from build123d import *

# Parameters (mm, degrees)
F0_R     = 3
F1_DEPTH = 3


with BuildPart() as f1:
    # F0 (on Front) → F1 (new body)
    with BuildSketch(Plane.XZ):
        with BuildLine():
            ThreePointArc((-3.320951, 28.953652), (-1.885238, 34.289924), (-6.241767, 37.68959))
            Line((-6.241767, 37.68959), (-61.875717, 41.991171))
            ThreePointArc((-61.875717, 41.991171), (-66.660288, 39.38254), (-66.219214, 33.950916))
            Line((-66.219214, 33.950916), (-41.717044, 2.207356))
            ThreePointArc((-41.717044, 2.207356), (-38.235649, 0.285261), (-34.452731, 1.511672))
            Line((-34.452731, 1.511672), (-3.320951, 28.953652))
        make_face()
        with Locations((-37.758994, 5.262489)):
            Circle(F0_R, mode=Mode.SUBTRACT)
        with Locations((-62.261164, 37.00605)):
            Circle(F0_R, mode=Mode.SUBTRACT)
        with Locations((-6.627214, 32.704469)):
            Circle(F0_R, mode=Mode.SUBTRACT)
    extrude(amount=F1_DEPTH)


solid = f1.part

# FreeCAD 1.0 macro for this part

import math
import FreeCAD as App
import Part
import Sketcher
from FreeCAD import Vector

doc = App.newDocument("Part")
body = doc.addObject("PartDesign::Body", "Body")

sketch1 = body.newObject("Sketcher::SketchObject", "Sketch")
sketch1.AttachmentSupport = (doc.getObject("XZ_Plane"), [""])
sketch1.MapMode = "FlatFace"
sketch1.addGeometry([
    Part.ArcOfCircle(Part.Circle(Vector(-6.627214, 32.704469, 0), Vector(0, 0, 1), 5), math.radians(-48.604533), math.radians(85.57872)),
    Part.LineSegment(Vector(-6.241767, 37.68959, 0), Vector(-61.875717, 41.991171, 0)),
    Part.ArcOfCircle(Part.Circle(Vector(-62.261163, 37.006049, 0), Vector(0, 0, 1), 5.000001), math.radians(85.578725), math.radians(217.663771)),
    Part.LineSegment(Vector(-66.219214, 33.950916, 0), Vector(-41.717044, 2.207356, 0)),
    Part.ArcOfCircle(Part.Circle(Vector(-37.758994, 5.26249, 0), Vector(0, 0, 1), 5), math.radians(-142.336226), math.radians(-48.604538)),
    Part.LineSegment(Vector(-34.452731, 1.511672, 0), Vector(-3.320951, 28.953652, 0)),
    Part.Circle(Vector(-37.758994, 5.262489, 0), Vector(0, 0, 1), 3),
    Part.Circle(Vector(-62.261164, 37.00605, 0), Vector(0, 0, 1), 3),
    Part.Circle(Vector(-6.627214, 32.704469, 0), Vector(0, 0, 1), 3),
], False)
sketch1.addConstraint([
    Sketcher.Constraint("Tangent", 0, 2, 1, 1),
    Sketcher.Constraint("Tangent", 1, 2, 2, 1),
    Sketcher.Constraint("Tangent", 2, 2, 3, 1),
    Sketcher.Constraint("Tangent", 3, 2, 4, 1),
    Sketcher.Constraint("Tangent", 4, 2, 5, 1),
    Sketcher.Constraint("Tangent", 5, 2, 0, 1),
    Sketcher.Constraint("Coincident", 6, 3, 4, 3),
    Sketcher.Constraint("Coincident", 7, 3, 2, 3),
    Sketcher.Constraint("Coincident", 8, 3, 0, 3),
    Sketcher.Constraint("Equal", 0, 2),
    Sketcher.Constraint("Equal", 2, 4),
    Sketcher.Constraint("Equal", 6, 7),
    Sketcher.Constraint("Equal", 7, 8),
    Sketcher.Constraint("Diameter", 6, 6.0),
    Sketcher.Constraint("Radius", 0, 5.0),
    Sketcher.Constraint("Distance", 1, 55.8),
    Sketcher.Constraint("Distance", 3, 40.099999),
    Sketcher.Constraint("Distance", 5, 41.5),
    Sketcher.Constraint("DistanceY", 4, 3, 0, 2, 32.4271),
    Sketcher.Constraint("DistanceY", -1, 1, 0, 3, 32.704469),
    Sketcher.Constraint("DistanceX", 4, 2, -1, 1, 34.452731),
])
pad1 = body.newObject("PartDesign::Pad", "Pad")
pad1.Profile = sketch1
pad1.Length = 3

doc.recompute()
